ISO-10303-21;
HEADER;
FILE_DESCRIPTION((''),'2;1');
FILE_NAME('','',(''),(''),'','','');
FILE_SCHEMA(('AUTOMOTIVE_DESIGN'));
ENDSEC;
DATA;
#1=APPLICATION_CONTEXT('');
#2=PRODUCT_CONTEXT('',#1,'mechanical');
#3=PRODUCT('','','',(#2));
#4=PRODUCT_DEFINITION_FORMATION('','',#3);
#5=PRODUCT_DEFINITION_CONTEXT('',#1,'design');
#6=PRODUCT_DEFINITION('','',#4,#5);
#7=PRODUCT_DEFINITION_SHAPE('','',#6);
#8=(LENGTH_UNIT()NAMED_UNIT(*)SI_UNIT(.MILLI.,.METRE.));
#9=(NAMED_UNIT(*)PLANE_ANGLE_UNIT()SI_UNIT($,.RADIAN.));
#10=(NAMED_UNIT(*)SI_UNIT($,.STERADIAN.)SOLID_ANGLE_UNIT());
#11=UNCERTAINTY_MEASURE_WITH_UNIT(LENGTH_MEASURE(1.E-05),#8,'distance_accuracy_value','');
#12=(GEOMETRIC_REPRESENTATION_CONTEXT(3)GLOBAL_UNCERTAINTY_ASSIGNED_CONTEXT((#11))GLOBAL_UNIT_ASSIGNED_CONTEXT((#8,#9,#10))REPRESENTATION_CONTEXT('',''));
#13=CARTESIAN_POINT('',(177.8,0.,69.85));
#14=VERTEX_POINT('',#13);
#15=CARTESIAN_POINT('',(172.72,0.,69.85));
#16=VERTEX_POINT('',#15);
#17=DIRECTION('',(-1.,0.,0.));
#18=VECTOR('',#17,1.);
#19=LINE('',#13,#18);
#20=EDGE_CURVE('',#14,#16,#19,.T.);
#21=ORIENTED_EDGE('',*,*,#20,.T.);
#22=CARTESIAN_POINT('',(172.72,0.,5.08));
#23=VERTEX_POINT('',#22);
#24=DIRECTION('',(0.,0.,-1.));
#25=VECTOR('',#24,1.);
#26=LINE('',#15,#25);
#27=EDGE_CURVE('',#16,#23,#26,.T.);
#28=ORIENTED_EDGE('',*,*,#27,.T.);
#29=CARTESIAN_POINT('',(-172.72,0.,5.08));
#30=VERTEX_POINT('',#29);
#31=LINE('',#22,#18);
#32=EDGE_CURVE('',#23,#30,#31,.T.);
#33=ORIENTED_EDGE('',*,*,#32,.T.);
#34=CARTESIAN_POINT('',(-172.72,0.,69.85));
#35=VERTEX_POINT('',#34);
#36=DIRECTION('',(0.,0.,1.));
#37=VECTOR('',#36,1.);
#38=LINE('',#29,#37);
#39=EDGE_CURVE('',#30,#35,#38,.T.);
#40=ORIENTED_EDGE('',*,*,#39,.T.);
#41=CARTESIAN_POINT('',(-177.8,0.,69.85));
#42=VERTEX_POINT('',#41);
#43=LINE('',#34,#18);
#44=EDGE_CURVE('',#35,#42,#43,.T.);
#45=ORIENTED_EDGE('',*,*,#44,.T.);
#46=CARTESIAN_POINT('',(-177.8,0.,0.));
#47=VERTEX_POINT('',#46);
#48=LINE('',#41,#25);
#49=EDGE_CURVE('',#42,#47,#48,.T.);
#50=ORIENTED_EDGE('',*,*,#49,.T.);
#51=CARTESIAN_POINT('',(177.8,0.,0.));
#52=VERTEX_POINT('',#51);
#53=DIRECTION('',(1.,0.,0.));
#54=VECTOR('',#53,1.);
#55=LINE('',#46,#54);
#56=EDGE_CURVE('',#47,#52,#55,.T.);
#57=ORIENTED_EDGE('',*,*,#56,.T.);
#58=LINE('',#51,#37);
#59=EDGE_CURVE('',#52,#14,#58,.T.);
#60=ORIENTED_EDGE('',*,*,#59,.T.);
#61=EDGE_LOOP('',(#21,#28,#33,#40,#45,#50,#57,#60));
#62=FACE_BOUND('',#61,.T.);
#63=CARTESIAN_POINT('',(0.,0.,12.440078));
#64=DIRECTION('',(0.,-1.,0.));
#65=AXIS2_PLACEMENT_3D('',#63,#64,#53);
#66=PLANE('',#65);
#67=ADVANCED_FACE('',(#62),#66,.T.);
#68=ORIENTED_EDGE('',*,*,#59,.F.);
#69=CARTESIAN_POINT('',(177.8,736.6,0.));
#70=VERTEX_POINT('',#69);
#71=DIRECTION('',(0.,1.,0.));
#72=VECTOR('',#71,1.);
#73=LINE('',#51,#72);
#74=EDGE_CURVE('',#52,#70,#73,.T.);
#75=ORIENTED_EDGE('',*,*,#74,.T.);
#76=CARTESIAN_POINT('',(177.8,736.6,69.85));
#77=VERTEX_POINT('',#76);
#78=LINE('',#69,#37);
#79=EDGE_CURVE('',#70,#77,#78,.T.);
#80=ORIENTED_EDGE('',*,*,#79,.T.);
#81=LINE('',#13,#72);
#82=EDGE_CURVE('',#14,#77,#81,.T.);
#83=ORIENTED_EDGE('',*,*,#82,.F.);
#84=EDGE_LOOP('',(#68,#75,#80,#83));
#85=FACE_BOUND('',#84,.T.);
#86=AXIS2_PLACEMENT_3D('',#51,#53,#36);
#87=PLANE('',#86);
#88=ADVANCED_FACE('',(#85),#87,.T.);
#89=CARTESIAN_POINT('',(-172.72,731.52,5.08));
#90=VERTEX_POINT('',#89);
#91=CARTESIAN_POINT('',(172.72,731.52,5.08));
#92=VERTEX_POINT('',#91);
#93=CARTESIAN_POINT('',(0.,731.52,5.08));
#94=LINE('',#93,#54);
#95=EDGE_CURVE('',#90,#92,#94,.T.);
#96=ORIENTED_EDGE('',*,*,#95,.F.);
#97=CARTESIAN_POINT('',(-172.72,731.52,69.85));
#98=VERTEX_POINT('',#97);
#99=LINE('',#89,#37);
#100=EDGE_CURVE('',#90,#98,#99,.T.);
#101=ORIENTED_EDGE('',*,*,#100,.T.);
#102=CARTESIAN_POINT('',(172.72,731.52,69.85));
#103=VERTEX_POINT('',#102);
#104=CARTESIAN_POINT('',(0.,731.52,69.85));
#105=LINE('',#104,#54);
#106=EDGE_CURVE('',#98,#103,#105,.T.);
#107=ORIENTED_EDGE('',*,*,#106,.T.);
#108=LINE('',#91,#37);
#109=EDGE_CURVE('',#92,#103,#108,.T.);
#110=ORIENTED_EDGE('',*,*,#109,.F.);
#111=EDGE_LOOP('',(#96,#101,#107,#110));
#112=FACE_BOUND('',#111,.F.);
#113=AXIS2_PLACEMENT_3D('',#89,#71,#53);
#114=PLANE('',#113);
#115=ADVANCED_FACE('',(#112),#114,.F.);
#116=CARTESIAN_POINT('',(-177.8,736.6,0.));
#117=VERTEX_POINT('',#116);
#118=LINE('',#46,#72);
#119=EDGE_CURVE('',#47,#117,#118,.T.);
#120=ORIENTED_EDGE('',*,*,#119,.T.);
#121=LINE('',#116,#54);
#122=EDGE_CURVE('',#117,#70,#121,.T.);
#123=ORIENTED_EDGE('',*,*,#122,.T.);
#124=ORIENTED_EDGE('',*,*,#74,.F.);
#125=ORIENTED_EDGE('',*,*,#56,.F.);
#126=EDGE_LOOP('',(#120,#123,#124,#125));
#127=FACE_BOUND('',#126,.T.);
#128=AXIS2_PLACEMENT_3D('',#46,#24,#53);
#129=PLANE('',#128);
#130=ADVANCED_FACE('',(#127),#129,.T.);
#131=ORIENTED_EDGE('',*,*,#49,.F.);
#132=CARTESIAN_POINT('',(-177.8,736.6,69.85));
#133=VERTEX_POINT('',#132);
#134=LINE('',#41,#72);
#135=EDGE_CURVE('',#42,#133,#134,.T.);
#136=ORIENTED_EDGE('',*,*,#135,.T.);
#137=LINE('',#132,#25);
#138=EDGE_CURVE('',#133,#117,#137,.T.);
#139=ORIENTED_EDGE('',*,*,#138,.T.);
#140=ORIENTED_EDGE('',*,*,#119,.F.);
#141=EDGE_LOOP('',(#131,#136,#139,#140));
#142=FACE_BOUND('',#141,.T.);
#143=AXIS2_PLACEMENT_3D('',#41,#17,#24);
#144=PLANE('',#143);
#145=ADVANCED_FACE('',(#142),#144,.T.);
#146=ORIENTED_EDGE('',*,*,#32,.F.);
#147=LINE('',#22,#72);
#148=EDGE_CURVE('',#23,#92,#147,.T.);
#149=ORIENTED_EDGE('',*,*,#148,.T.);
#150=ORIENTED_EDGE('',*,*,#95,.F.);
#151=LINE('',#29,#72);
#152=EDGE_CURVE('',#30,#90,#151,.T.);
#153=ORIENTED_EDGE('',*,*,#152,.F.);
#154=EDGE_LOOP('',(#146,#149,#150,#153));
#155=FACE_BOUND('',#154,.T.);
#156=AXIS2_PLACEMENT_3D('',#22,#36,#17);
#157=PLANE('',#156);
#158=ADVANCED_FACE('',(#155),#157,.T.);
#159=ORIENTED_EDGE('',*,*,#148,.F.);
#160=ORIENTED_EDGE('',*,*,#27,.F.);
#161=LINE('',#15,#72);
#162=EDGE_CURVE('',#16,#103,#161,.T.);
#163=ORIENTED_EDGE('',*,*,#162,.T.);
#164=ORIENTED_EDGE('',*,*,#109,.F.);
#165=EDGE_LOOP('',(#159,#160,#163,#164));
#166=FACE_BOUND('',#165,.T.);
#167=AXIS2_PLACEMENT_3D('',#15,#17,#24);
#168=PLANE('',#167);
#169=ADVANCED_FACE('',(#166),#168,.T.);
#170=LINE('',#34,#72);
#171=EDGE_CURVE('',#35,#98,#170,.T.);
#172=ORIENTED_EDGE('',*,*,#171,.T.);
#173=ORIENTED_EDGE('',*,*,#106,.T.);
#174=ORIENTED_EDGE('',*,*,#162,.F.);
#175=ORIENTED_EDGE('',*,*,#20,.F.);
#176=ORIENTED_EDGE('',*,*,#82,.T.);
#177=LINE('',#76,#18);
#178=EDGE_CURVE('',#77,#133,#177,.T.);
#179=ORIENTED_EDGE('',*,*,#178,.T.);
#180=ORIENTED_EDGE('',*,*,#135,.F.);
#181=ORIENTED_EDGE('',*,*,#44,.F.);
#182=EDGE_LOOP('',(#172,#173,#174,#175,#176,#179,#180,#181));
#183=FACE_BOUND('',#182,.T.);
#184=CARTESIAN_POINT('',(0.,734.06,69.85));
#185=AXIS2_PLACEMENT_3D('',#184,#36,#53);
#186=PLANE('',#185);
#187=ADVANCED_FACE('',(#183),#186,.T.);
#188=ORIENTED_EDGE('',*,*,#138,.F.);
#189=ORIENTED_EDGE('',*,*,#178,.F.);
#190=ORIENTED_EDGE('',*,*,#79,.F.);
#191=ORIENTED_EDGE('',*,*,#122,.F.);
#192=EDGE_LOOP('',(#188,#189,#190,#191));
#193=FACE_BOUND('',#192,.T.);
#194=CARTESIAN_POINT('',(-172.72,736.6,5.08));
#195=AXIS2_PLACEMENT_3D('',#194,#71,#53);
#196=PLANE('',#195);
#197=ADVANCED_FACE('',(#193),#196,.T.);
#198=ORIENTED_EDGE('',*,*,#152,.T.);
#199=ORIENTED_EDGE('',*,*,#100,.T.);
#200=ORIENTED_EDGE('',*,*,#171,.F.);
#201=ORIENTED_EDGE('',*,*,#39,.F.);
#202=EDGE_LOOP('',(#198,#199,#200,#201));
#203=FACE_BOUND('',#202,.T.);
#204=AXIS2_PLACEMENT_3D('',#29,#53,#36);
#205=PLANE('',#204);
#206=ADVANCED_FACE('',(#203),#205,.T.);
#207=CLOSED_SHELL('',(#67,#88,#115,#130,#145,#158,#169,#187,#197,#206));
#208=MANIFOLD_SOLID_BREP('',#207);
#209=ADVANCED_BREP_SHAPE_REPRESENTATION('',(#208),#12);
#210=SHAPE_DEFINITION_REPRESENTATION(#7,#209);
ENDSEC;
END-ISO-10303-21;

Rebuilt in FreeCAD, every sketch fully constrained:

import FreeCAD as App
import Part
import Sketcher
from FreeCAD import Vector
Q = App.Units.Quantity

doc = App.newDocument("Part")
body = doc.addObject("PartDesign::Body", "Body")

sketch1 = body.newObject("Sketcher::SketchObject", "Sketch")
sketch1.AttachmentSupport = (doc.getObject("XZ_Plane"), [""])
sketch1.MapMode = "FlatFace"
sketch1.addGeometry(Part.LineSegment(Vector(-173, 70, 0), Vector(-178, 70, 0)), False)
sketch1.addGeometry(Part.LineSegment(Vector(-178, 70, 0), Vector(-178, 0, 0)), False)
sketch1.addGeometry(Part.LineSegment(Vector(-178, 0, 0), Vector(178, 0, 0)), False)
sketch1.addGeometry(Part.LineSegment(Vector(178, 0, 0), Vector(178, 70, 0)), False)
sketch1.addGeometry(Part.LineSegment(Vector(178, 70, 0), Vector(173, 70, 0)), False)
sketch1.addGeometry(Part.LineSegment(Vector(173, 70, 0), Vector(173, 5, 0)), False)
sketch1.addGeometry(Part.LineSegment(Vector(173, 5, 0), Vector(-173, 5, 0)), False)
sketch1.addGeometry(Part.LineSegment(Vector(-173, 5, 0), Vector(-173, 70, 0)), False)
sketch1.addConstraint(Sketcher.Constraint("Coincident", 0, 2, 1, 1))
sketch1.addConstraint(Sketcher.Constraint("Coincident", 1, 2, 2, 1))
sketch1.addConstraint(Sketcher.Constraint("Coincident", 2, 2, 3, 1))
sketch1.addConstraint(Sketcher.Constraint("Coincident", 3, 2, 4, 1))
sketch1.addConstraint(Sketcher.Constraint("Coincident", 4, 2, 5, 1))
sketch1.addConstraint(Sketcher.Constraint("Coincident", 5, 2, 6, 1))
sketch1.addConstraint(Sketcher.Constraint("Coincident", 6, 2, 7, 1))
sketch1.addConstraint(Sketcher.Constraint("Coincident", 7, 2, 0, 1))
sketch1.addConstraint(Sketcher.Constraint("Horizontal", 0))
sketch1.addConstraint(Sketcher.Constraint("Vertical", 1))
sketch1.addConstraint(Sketcher.Constraint("Horizontal", 2))
sketch1.addConstraint(Sketcher.Constraint("Vertical", 3))
sketch1.addConstraint(Sketcher.Constraint("Horizontal", 4))
sketch1.addConstraint(Sketcher.Constraint("Vertical", 5))
sketch1.addConstraint(Sketcher.Constraint("Horizontal", 6))
sketch1.addConstraint(Sketcher.Constraint("Vertical", 7))
sketch1.addConstraint(Sketcher.Constraint("Symmetric", 1, 2, 2, 2, -1, 1))
sketch1.addConstraint(Sketcher.Constraint("Symmetric", 4, 2, 7, 2, -2))
sketch1.addConstraint(Sketcher.Constraint("DistanceX", 2, 1, 2, 2, Q("14 in")))
sketch1.addConstraint(Sketcher.Constraint("DistanceX", 0, 2, 0, 1, Q("0.2 in")))
sketch1.addConstraint(Sketcher.Constraint("DistanceY", 1, 2, 1, 1, Q("2.75 in")))
sketch1.addConstraint(Sketcher.Constraint("DistanceY", 5, 2, 5, 1, Q("2.55 in")))
pad1 = body.newObject("PartDesign::Pad", "Pad")
pad1.Profile = sketch1
pad1.Length = Q("29 in")
pad1.Reversed = True

sketch2 = body.newObject("Sketcher::SketchObject", "Sketch001")
sketch2.AttachmentSupport = (doc.getObject("XY_Plane"), [""])
sketch2.MapMode = "FlatFace"
sketch2.AttachmentOffset = App.Placement(Vector(0, 0, 0.2 * 25.4), App.Rotation())
sketch2.addGeometry(Part.LineSegment(Vector(-173, 737, 0), Vector(-173, 732, 0)), False)
sketch2.addGeometry(Part.LineSegment(Vector(-173, 732, 0), Vector(173, 732, 0)), False)
sketch2.addGeometry(Part.LineSegment(Vector(173, 732, 0), Vector(173, 737, 0)), False)
sketch2.addGeometry(Part.LineSegment(Vector(173, 737, 0), Vector(-173, 737, 0)), False)
sketch2.addConstraint(Sketcher.Constraint("Coincident", 0, 2, 1, 1))
sketch2.addConstraint(Sketcher.Constraint("Coincident", 1, 2, 2, 1))
sketch2.addConstraint(Sketcher.Constraint("Coincident", 2, 2, 3, 1))
sketch2.addConstraint(Sketcher.Constraint("Coincident", 3, 2, 0, 1))
sketch2.addConstraint(Sketcher.Constraint("Vertical", 0))
sketch2.addConstraint(Sketcher.Constraint("Horizontal", 1))
sketch2.addConstraint(Sketcher.Constraint("Vertical", 2))
sketch2.addConstraint(Sketcher.Constraint("Horizontal", 3))
sketch2.addConstraint(Sketcher.Constraint("DistanceX", 1, 1, 1, 2, Q("13.6 in")))
sketch2.addConstraint(Sketcher.Constraint("DistanceY", 0, 2, 0, 1, Q("0.2 in")))
sketch2.addConstraint(Sketcher.Constraint("DistanceY", -1, 1, 2, 2, Q("29 in")))
sketch2.addConstraint(Sketcher.Constraint("DistanceX", 0, 2, -1, 1, Q("6.8 in")))
pad2 = body.newObject("PartDesign::Pad", "Pad001")
pad2.Profile = sketch2
pad2.Length = Q("2.55 in")

doc.recompute()
